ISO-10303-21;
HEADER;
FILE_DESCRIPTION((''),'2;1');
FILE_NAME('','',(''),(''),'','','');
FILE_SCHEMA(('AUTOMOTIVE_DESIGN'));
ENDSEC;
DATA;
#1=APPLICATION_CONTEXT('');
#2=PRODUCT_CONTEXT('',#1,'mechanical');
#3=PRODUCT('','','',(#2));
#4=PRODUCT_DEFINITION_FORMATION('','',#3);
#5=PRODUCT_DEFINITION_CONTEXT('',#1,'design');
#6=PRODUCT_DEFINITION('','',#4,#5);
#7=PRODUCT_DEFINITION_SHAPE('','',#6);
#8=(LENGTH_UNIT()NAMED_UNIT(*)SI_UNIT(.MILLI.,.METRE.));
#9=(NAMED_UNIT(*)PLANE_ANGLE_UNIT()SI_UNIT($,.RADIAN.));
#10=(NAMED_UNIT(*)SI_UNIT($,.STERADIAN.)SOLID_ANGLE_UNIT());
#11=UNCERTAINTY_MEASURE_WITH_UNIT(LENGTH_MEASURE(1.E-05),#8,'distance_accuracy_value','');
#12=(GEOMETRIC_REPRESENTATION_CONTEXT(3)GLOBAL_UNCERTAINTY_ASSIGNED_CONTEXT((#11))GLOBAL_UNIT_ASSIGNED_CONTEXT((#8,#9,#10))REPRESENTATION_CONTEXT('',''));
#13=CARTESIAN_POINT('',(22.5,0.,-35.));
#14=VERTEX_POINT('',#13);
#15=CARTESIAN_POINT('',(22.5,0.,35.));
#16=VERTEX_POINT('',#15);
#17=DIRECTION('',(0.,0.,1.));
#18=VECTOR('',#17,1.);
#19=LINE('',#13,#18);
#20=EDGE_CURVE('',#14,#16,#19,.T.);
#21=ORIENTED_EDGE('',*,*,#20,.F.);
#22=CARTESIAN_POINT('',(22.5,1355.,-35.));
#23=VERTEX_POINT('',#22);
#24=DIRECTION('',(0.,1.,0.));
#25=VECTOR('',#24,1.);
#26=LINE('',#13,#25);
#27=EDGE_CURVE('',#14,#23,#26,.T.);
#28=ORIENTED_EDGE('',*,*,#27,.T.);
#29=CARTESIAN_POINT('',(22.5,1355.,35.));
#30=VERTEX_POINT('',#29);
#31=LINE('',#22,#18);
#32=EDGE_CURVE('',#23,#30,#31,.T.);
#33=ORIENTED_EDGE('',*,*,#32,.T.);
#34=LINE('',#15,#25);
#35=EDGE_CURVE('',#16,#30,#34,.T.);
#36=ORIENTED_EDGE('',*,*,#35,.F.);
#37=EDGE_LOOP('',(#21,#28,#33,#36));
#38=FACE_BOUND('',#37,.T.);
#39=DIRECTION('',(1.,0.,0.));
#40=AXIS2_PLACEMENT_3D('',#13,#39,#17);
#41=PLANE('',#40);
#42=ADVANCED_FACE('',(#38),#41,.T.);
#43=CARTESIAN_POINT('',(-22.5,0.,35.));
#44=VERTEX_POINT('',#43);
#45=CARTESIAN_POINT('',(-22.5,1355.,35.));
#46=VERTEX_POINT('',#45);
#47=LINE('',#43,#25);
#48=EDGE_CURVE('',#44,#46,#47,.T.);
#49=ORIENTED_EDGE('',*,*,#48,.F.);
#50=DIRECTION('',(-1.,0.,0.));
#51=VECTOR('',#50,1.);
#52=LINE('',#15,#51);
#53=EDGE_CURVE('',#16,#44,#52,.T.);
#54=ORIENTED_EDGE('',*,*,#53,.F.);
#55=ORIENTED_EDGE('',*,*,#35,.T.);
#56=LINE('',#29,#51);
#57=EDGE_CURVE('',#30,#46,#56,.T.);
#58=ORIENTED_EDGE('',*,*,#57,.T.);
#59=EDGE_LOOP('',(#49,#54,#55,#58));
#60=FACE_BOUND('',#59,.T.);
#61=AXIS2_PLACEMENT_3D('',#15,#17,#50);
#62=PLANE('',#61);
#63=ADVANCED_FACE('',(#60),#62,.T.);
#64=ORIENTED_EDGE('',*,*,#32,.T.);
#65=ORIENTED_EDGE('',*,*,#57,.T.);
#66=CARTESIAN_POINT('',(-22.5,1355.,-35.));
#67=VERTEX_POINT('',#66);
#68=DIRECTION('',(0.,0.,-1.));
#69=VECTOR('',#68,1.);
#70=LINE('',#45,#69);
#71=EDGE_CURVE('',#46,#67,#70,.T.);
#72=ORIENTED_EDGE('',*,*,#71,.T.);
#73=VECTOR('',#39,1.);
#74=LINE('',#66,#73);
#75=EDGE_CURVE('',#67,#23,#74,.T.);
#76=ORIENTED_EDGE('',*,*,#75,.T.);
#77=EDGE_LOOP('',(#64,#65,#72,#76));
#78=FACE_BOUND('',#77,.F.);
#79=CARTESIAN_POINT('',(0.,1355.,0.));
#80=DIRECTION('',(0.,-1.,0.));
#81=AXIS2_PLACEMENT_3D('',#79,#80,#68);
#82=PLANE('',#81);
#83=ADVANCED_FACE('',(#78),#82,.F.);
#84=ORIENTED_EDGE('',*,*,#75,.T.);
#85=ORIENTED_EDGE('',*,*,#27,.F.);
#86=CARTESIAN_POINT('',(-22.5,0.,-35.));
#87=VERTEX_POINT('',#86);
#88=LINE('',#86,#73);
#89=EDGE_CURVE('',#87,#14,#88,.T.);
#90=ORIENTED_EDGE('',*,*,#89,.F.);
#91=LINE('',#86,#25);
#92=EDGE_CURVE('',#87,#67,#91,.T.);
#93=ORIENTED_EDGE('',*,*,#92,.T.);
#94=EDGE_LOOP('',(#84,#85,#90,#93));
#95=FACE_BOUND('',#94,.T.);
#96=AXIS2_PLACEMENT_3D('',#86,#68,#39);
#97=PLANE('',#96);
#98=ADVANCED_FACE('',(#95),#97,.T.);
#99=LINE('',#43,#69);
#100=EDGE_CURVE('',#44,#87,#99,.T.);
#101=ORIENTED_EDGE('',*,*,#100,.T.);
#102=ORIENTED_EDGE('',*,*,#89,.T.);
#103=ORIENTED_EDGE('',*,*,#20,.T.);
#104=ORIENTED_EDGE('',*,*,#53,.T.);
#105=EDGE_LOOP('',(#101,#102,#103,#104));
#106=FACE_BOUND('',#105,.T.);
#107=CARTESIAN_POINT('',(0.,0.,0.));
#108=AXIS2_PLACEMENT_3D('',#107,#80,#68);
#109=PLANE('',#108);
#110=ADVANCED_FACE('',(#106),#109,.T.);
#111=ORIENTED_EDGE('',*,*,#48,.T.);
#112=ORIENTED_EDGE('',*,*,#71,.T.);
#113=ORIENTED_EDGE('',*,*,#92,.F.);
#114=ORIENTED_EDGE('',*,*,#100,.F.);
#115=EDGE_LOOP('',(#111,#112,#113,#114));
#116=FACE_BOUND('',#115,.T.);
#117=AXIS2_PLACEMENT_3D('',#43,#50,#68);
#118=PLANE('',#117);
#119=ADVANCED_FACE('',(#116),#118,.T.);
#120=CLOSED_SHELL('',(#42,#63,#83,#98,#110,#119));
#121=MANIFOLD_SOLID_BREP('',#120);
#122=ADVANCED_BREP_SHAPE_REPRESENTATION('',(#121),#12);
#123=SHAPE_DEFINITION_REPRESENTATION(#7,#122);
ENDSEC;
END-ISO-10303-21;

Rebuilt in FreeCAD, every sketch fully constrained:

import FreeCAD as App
import Part
import Sketcher

V = App.Vector


def add_polygon(sketch, points):
    """Adds a closed chain of lines whose ends are joined by coincident constraints."""
    first, n = sketch.GeometryCount, len(points)
    for a, b in zip(points, points[1:] + points[:1]):
        sketch.addGeometry(Part.LineSegment(App.Vector(*a, 0), App.Vector(*b, 0)), False)
    for i in range(n):
        sketch.addConstraint(Sketcher.Constraint("Coincident", first + i, 2, first + (i + 1) % n, 1))

doc = App.newDocument("Part")
params = doc.addObject("Spreadsheet::Sheet", "Params")
for row, (alias, value) in enumerate([
    ("sketch1_width", "45 mm"),
    ("sketch1_height", "70 mm"),
    ("pad1_length", "1355 mm"),
], start=1):
    params.set(f"A{row}", alias)
    params.set(f"B{row}", "=" + value)
    params.setAlias(f"B{row}", alias)

body = doc.addObject("PartDesign::Body", "Body")

sketch1 = body.newObject("Sketcher::SketchObject", "Sketch")
sketch1.AttachmentSupport = (doc.getObject("XZ_Plane"), [""])
sketch1.MapMode = "FlatFace"
add_polygon(sketch1, [(-22, 35), (-22, -35), (22, -35), (22, 35)])
sketch1.addConstraint([
    Sketcher.Constraint("Vertical", 0),
    Sketcher.Constraint("Horizontal", 1),
    Sketcher.Constraint("Vertical", 2),
    Sketcher.Constraint("Horizontal", 3),
    Sketcher.Constraint("Symmetric", 0, 2, 2, 2, -1, 1),
    Sketcher.Constraint("DistanceX", 1, 1, 1, 2, 45.0),
    Sketcher.Constraint("DistanceY", 0, 2, 0, 1, 70.0),
])
sketch1.setExpression("Constraints[9]", "Params.sketch1_width")
sketch1.setExpression("Constraints[10]", "Params.sketch1_height")
pad1 = body.newObject("PartDesign::Pad", "Pad")
pad1.Profile = sketch1
pad1.setExpression("Length", "Params.pad1_length")
pad1.Reversed = True

doc.recompute()
